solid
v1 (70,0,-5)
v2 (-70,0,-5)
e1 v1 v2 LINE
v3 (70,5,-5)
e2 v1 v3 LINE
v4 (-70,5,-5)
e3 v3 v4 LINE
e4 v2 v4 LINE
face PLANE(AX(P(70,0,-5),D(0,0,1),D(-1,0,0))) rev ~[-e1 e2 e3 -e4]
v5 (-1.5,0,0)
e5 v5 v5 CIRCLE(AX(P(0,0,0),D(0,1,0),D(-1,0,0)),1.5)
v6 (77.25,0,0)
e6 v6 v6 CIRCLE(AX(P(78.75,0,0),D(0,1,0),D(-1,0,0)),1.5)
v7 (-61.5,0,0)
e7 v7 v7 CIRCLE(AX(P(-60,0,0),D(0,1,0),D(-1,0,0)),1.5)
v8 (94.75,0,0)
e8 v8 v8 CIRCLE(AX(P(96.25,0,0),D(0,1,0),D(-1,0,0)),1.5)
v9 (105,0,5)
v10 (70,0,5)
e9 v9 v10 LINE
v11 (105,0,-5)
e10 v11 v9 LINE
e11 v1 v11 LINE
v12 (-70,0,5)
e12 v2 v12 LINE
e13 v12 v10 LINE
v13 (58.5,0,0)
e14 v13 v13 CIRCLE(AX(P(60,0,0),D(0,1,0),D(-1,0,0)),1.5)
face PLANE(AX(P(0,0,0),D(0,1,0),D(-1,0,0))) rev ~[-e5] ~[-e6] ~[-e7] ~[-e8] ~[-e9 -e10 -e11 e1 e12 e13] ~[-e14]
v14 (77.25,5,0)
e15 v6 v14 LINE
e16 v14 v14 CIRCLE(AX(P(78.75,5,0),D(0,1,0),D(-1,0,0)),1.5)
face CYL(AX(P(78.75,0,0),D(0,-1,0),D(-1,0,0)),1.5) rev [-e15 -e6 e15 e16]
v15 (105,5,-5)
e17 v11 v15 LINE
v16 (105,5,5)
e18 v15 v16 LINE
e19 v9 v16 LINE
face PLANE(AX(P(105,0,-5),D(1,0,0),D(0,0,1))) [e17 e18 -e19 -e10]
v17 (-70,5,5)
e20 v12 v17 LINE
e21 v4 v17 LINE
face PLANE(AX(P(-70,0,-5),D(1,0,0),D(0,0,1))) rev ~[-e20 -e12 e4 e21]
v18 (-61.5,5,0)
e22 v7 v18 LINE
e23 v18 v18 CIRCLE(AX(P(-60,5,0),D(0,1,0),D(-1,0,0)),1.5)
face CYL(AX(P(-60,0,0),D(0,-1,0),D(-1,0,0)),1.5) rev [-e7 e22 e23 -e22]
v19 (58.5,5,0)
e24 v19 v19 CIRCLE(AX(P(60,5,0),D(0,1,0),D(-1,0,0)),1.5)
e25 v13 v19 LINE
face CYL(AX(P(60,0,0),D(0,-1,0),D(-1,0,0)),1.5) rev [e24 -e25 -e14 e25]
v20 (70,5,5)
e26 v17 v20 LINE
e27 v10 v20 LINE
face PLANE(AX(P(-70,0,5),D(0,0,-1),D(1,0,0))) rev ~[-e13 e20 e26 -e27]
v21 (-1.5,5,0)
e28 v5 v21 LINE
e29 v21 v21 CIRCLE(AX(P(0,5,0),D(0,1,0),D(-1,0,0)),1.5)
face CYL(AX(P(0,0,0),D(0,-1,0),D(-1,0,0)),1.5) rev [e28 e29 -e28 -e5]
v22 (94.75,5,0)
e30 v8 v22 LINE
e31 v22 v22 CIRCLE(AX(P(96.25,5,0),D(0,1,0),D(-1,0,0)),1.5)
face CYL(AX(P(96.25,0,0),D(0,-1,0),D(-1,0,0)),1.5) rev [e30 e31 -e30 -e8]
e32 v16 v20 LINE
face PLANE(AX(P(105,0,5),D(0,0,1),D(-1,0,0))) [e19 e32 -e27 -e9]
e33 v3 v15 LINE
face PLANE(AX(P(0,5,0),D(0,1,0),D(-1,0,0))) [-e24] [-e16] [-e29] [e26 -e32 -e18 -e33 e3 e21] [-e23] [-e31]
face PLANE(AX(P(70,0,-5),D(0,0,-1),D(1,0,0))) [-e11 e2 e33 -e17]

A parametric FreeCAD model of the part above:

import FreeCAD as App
import Part
import Sketcher

V = App.Vector
Q = App.Units.Quantity


def add_polygon(sketch, points):
    """Adds a closed chain of lines whose ends are joined by coincident constraints."""
    first, n = sketch.GeometryCount, len(points)
    for a, b in zip(points, points[1:] + points[:1]):
        sketch.addGeometry(Part.LineSegment(App.Vector(*a, 0), App.Vector(*b, 0)), False)
    for i in range(n):
        sketch.addConstraint(Sketcher.Constraint("Coincident", first + i, 2, first + (i + 1) % n, 1))

doc = App.newDocument("Part")
params = doc.addObject("Spreadsheet::Sheet", "Params")
for row, (alias, value) in enumerate([
    ("sketch1_diameter", "3 mm"),
    ("sketch1_width", "175 mm"),
    ("sketch1_height", "10 mm"),
    ("pad1_length", "5 mm"),
], start=1):
    params.set(f"A{row}", alias)
    params.set(f"B{row}", "=" + value)
    params.setAlias(f"B{row}", alias)

body = doc.addObject("PartDesign::Body", "Body")

sketch1 = doc.addObject("Sketcher::SketchObject", "Sketch")
body.addObject(sketch1)
sketch1.AttachmentSupport = (doc.XZ_Plane, [""])
sketch1.MapMode = "FlatFace"
add_polygon(sketch1, [(-70, -5), (-70, 5), (105, 5), (105, -5)])
sketch1.addGeometry(Part.Circle(V(96.25, 0, 0), V(0, 0, 1), 1.5), False)
sketch1.addGeometry(Part.Circle(V(78.75, 0, 0), V(0, 0, 1), 1.5), False)
sketch1.addGeometry(Part.Circle(V(60, 0, 0), V(0, 0, 1), 1.5), False)
sketch1.addGeometry(Part.Circle(V(0, 0, 0), V(0, 0, 1), 1.5), False)
sketch1.addGeometry(Part.Circle(V(-60, 0, 0), V(0, 0, 1), 1.5), False)
sketch1.addConstraint([
    Sketcher.Constraint("Vertical", 0),
    Sketcher.Constraint("Horizontal", 1),
    Sketcher.Constraint("Vertical", 2),
    Sketcher.Constraint("Horizontal", 3),
    Sketcher.Constraint("Coincident", 7, 3, -1, 1),
    Sketcher.Constraint("Equal", 4, 5),
    Sketcher.Constraint("Equal", 5, 6),
    Sketcher.Constraint("Equal", 6, 7),
    Sketcher.Constraint("Equal", 7, 8),
    Sketcher.Constraint("Symmetric", 6, 3, 8, 3, -1, 1),
    Sketcher.Constraint("PointOnObject", 4, 3, -1),
    Sketcher.Constraint("PointOnObject", 5, 3, -1),
    Sketcher.Constraint("PointOnObject", 6, 3, -1),
    Sketcher.Constraint("Diameter", 4, Q("3 mm")),
    Sketcher.Constraint("DistanceX", 1, 1, 1, 2, Q("175 mm")),
    Sketcher.Constraint("DistanceY", 0, 1, 0, 2, Q("10 mm")),
    Sketcher.Constraint("DistanceX", -1, 1, 6, 3, Q("60 mm")),
    Sketcher.Constraint("DistanceX", 0, 2, -1, 1, Q("70 mm")),
    Sketcher.Constraint("DistanceY", -1, 1, 0, 2, Q("5 mm")),
    Sketcher.Constraint("DistanceX", 5, 3, 4, 3, Q("17.5 mm")),
    Sketcher.Constraint("DistanceX", -1, 1, 4, 3, Q("96.25 mm")),
])
sketch1.setExpression("Constraints[17]", "Params.sketch1_diameter")
sketch1.setExpression("Constraints[18]", "Params.sketch1_width")
sketch1.setExpression("Constraints[19]", "Params.sketch1_height")
pad1 = doc.addObject("PartDesign::Pad", "Pad")
body.addObject(pad1)
pad1.Profile = sketch1
pad1.setExpression("Length", "Params.pad1_length")
pad1.Reversed = True

doc.recompute()
